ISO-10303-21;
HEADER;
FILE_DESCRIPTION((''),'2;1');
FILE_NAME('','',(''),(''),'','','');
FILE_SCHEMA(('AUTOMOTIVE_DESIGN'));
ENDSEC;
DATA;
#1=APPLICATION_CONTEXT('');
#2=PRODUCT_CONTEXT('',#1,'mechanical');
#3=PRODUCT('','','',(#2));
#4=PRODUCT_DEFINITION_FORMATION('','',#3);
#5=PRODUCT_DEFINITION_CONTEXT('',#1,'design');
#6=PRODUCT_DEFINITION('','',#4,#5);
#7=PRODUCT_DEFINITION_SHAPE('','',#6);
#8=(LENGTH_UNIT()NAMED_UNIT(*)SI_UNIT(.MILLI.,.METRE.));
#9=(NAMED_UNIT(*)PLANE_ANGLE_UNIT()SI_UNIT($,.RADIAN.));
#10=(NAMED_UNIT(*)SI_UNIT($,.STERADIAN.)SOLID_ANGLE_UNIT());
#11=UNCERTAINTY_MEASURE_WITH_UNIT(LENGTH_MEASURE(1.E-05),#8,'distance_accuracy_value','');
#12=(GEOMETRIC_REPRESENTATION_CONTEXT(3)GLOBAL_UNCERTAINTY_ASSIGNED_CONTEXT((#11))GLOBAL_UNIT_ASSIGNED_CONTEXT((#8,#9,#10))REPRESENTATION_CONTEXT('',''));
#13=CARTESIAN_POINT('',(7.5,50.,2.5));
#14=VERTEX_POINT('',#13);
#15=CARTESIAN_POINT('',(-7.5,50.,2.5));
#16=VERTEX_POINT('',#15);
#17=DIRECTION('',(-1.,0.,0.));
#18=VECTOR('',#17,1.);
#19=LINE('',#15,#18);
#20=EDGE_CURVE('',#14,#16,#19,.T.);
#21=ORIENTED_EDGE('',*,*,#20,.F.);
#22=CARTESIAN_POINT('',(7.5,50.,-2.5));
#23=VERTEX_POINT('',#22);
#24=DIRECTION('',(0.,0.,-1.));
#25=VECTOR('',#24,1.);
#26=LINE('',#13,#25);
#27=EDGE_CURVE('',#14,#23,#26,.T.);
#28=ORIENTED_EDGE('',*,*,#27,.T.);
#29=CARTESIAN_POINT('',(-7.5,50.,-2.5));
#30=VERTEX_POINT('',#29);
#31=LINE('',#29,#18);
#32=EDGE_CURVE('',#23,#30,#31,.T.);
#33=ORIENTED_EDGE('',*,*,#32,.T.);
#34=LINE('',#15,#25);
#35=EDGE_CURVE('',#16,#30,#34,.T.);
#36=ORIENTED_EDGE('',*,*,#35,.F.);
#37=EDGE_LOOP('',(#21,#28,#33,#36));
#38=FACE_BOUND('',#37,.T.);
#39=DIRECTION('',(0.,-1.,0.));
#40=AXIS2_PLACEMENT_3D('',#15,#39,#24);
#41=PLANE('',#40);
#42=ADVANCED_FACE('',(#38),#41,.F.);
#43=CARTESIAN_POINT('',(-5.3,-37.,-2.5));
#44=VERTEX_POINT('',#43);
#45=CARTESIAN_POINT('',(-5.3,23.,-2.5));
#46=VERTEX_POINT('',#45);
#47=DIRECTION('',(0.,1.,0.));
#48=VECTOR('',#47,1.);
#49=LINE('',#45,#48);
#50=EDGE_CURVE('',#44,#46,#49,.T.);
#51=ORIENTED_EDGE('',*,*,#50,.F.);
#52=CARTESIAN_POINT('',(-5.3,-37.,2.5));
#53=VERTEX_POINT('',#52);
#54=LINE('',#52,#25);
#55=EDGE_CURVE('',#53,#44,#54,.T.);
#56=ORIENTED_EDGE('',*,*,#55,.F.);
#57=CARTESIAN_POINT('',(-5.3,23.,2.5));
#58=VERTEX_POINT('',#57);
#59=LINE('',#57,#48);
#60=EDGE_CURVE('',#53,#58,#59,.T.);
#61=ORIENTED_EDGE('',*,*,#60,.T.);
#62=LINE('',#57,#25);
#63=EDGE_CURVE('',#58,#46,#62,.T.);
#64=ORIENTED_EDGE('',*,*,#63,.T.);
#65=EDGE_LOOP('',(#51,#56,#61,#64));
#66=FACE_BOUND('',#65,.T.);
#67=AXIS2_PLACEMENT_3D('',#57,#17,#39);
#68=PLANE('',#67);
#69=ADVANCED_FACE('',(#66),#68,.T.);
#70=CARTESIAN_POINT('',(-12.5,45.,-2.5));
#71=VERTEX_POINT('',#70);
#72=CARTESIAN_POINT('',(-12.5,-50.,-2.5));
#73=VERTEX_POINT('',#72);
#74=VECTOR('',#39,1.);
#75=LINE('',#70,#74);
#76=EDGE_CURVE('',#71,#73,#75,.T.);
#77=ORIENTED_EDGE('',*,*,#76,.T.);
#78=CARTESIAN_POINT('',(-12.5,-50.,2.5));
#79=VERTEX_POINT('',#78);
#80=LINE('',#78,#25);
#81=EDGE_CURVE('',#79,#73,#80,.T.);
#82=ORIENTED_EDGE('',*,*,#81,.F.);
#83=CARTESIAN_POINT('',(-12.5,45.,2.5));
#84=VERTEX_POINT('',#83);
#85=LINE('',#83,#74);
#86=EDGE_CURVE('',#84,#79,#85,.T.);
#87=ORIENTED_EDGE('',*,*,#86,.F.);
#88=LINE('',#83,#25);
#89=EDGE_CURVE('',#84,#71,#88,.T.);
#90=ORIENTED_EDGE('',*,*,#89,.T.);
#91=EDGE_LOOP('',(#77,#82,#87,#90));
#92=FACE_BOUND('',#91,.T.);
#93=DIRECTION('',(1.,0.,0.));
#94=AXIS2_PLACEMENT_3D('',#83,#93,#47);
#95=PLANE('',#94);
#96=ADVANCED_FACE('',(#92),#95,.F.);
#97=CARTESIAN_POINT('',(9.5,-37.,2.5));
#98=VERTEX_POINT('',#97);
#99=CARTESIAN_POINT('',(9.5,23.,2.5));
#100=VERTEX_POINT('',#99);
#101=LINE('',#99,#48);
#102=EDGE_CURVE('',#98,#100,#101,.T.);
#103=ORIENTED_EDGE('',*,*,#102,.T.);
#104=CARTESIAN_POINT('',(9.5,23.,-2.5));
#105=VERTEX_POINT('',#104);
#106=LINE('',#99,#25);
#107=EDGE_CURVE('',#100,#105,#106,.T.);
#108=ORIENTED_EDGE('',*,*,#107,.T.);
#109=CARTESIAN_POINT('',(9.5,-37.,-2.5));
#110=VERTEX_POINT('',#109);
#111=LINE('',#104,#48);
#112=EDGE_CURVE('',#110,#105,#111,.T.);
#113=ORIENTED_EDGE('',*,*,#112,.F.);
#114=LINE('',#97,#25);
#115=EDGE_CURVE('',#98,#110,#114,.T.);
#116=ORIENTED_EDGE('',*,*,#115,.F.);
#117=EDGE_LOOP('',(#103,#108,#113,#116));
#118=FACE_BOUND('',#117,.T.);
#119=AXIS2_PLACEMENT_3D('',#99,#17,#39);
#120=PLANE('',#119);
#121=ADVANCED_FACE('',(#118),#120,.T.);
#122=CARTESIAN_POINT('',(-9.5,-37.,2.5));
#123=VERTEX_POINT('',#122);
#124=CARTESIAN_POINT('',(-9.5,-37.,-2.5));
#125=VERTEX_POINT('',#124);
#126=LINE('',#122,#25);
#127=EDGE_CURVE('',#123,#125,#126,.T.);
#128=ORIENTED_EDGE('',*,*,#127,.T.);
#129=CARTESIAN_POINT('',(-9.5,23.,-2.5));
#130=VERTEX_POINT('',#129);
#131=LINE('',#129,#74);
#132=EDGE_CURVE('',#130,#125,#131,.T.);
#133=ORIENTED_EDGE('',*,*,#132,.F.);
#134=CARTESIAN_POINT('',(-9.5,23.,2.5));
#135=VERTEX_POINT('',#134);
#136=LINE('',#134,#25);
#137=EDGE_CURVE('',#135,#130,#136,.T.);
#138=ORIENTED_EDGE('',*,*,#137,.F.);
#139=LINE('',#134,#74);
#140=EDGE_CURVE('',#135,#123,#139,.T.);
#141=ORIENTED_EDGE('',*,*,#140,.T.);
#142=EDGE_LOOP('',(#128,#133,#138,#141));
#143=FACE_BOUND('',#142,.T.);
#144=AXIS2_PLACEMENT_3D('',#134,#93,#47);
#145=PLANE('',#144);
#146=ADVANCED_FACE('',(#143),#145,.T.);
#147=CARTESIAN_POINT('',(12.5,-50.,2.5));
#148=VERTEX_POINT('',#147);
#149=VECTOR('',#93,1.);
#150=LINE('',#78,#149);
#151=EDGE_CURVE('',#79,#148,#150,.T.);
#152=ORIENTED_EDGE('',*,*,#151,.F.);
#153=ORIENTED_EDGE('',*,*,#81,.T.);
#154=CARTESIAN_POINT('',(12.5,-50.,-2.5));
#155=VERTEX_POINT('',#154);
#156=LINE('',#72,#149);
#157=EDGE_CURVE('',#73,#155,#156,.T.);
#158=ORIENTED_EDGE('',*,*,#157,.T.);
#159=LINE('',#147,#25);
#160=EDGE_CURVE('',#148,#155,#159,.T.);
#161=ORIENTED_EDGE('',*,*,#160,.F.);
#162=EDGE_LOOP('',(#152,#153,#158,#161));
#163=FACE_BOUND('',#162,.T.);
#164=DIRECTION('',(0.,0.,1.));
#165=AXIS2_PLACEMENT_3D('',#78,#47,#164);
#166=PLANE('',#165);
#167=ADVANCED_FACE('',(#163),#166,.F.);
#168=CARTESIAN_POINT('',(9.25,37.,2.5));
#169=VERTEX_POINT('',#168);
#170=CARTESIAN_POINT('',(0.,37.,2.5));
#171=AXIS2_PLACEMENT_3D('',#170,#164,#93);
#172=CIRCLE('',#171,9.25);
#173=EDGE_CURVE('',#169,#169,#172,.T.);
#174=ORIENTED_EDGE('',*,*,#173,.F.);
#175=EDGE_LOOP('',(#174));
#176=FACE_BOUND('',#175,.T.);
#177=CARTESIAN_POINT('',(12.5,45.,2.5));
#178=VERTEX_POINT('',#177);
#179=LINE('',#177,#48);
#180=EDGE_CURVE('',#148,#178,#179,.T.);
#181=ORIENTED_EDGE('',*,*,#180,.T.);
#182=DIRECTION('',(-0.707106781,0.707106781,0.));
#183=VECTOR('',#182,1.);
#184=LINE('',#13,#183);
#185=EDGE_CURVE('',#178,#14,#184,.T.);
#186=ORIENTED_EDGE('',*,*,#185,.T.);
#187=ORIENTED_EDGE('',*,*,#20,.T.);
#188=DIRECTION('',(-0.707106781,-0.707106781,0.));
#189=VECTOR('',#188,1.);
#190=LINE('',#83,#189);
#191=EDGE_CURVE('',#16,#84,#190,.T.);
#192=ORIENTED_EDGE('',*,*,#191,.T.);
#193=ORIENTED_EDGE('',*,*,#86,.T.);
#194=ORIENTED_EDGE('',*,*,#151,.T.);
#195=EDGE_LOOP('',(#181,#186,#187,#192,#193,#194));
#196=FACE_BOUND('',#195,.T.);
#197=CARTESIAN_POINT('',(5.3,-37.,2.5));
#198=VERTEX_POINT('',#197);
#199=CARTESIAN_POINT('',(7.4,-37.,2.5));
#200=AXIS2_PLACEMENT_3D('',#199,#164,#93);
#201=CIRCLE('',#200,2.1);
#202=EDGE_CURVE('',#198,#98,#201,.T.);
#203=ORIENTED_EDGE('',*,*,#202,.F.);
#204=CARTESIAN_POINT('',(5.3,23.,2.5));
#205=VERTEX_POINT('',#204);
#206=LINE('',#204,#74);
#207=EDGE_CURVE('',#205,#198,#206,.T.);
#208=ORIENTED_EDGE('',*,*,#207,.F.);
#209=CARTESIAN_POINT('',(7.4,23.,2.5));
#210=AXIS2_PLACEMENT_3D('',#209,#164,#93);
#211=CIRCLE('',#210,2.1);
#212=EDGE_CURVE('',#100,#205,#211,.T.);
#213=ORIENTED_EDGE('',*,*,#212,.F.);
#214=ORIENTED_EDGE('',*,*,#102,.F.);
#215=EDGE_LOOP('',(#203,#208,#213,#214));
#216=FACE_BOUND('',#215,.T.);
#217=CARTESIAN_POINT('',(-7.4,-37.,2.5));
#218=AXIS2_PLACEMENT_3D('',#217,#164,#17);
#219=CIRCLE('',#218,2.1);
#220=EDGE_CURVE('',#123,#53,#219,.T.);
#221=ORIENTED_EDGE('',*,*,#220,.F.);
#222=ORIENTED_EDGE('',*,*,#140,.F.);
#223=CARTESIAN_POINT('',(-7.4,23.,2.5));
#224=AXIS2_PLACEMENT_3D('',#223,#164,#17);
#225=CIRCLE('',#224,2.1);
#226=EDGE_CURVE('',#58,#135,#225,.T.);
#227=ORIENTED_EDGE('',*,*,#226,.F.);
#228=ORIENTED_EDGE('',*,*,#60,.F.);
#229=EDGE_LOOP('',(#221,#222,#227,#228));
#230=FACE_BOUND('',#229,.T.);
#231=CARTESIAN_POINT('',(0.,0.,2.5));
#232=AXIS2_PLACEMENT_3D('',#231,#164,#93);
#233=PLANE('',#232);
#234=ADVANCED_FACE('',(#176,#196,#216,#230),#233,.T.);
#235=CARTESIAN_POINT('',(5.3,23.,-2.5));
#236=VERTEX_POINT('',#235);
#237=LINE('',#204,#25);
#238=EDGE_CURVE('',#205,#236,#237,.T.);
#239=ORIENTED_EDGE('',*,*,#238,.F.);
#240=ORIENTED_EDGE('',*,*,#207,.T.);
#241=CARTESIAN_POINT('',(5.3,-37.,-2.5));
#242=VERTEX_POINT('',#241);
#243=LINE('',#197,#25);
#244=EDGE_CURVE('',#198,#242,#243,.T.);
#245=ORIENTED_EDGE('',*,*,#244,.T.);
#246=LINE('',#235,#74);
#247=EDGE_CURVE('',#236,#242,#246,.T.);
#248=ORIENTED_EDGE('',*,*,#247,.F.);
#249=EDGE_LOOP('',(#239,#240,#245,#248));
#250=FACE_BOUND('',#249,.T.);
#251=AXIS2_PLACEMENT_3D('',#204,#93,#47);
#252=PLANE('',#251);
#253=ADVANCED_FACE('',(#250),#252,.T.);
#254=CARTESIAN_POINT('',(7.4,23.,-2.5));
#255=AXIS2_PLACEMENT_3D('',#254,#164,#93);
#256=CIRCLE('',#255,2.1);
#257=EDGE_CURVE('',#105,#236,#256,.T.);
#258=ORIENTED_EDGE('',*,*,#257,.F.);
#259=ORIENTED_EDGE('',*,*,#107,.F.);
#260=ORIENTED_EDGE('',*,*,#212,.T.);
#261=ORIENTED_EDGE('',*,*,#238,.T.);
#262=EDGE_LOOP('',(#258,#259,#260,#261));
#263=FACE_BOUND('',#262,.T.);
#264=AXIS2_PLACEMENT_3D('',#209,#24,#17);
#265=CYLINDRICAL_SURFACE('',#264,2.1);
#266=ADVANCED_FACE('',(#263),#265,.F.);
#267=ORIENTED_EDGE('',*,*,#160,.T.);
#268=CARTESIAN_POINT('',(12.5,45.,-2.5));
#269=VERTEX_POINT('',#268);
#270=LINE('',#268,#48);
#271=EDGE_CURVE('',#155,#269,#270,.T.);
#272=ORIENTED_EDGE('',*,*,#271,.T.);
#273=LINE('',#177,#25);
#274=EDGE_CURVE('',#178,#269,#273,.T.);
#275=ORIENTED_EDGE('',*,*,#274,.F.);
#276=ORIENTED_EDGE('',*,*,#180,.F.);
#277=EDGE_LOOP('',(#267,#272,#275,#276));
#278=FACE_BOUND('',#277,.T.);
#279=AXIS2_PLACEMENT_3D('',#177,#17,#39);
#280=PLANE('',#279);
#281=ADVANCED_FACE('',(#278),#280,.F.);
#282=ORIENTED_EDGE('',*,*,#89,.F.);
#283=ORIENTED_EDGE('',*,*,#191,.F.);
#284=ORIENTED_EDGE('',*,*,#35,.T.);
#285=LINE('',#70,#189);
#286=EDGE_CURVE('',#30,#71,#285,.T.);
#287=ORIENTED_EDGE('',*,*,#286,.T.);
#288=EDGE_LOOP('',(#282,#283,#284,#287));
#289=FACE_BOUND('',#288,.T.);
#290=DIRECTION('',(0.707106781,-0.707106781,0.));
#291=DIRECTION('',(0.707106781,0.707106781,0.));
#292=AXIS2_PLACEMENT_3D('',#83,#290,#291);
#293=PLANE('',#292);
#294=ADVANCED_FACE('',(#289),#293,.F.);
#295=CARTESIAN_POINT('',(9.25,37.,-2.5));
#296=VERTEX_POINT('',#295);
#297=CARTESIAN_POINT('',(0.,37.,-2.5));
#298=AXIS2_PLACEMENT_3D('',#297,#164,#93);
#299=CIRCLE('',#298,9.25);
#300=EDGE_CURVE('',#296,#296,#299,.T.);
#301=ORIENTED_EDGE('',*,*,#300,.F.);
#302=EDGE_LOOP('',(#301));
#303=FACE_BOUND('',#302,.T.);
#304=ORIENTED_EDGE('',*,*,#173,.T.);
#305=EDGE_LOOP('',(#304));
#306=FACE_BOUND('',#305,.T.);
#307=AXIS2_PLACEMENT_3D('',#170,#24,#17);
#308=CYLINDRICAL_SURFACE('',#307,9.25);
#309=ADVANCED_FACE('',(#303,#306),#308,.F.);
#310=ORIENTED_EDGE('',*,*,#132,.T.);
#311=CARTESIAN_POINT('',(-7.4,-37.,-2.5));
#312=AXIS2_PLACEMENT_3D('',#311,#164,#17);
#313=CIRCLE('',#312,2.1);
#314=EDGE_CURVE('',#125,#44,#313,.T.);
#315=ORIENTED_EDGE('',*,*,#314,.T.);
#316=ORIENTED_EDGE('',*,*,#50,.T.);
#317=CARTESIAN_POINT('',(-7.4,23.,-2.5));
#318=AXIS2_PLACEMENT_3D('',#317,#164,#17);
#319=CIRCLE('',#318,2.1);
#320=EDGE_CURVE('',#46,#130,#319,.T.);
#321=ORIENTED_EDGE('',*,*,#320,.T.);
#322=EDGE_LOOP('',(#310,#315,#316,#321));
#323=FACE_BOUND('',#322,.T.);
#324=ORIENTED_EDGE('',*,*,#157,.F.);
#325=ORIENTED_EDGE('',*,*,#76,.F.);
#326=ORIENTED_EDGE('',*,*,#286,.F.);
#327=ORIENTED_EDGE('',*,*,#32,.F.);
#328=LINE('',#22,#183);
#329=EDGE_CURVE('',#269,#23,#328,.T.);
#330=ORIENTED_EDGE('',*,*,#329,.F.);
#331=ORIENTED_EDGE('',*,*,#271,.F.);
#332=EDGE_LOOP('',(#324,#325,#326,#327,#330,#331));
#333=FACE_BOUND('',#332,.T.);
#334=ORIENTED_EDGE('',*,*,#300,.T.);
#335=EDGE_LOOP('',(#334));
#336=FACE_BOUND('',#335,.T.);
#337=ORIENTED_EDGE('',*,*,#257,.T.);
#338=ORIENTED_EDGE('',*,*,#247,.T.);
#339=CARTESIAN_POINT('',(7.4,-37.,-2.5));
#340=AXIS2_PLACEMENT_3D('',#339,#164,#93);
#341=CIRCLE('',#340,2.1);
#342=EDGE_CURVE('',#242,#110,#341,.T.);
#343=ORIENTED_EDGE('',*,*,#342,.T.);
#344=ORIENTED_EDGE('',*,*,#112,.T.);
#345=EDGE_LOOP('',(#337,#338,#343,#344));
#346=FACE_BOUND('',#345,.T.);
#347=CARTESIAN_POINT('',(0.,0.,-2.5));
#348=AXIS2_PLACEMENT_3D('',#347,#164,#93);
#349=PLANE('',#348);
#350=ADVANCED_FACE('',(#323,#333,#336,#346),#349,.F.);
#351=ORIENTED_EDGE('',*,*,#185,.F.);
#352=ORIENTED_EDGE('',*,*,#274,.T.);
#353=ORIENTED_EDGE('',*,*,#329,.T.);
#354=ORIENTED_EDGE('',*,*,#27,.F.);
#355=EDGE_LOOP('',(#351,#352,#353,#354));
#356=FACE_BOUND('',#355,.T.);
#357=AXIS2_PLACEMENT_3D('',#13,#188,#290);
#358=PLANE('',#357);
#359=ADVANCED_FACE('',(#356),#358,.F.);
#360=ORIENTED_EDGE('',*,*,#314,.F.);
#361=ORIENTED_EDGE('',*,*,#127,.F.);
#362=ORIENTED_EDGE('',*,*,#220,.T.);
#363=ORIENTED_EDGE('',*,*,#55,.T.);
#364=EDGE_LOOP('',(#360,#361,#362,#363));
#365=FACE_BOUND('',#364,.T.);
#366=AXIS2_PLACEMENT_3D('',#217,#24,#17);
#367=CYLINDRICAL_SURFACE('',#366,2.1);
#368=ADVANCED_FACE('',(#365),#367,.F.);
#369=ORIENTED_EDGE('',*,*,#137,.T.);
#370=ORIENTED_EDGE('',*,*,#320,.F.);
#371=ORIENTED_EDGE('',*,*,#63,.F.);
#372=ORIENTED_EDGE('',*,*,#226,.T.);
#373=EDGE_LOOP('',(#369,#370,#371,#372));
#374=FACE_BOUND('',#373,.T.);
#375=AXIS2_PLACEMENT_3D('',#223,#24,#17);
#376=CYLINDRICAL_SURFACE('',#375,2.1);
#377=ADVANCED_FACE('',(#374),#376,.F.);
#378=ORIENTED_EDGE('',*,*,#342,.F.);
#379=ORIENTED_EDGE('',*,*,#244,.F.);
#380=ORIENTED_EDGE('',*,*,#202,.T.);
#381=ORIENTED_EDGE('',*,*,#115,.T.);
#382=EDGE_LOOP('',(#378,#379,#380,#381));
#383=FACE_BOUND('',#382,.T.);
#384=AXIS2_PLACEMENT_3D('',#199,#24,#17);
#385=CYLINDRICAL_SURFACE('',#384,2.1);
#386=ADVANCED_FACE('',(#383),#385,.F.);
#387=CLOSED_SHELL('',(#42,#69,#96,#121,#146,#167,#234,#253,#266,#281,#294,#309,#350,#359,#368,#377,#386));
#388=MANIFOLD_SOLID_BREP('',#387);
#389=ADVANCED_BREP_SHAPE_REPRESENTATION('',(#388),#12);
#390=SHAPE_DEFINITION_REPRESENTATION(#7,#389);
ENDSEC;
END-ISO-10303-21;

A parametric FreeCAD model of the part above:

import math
import FreeCAD as App
import Part
import Sketcher
from FreeCAD import Vector
Q = App.Units.Quantity

doc = App.newDocument("Part")
params = doc.addObject("Spreadsheet::Sheet", "Params")
for row, (alias, value) in enumerate([
    ("sketch1_diameter", "18.5 mm"),
    ("sketch1_radius", "2.1 mm"),
    ("sketch1_width", "15 mm"),
    ("sketch1_width2", "25 mm"),
    ("sketch1_height", "95 mm"),
    ("pad1_length", "5 mm"),
], start=1):
    params.set(f"A{row}", alias)
    params.set(f"B{row}", "=" + value)
    params.setAlias(f"B{row}", alias)

body = doc.addObject("PartDesign::Body", "Body")

# Sketch on XY plane
sketch1 = body.newObject("Sketcher::SketchObject", "Sketch")
sketch1.AttachmentSupport = (doc.getObject("XY_Plane"), [""])
sketch1.MapMode = "FlatFace"
sketch1.addGeometry(Part.LineSegment(Vector(7.5, 50, 0), Vector(-7.5, 50, 0)), False)
sketch1.addGeometry(Part.LineSegment(Vector(-7.5, 50, 0), Vector(-12.5, 45, 0)), False)
sketch1.addGeometry(Part.LineSegment(Vector(-12.5, 45, 0), Vector(-12.5, -50, 0)), False)
sketch1.addGeometry(Part.LineSegment(Vector(-12.5, -50, 0), Vector(12.5, -50, 0)), False)
sketch1.addGeometry(Part.LineSegment(Vector(12.5, -50, 0), Vector(12.5, 45, 0)), False)
sketch1.addGeometry(Part.LineSegment(Vector(12.5, 45, 0), Vector(7.5, 50, 0)), False)
sketch1.addGeometry(Part.LineSegment(Vector(9.5, 23, 0), Vector(9.5, -37, 0)), False)
sketch1.addGeometry(Part.ArcOfCircle(Part.Circle(Vector(7.4, -37, 0), Vector(0, 0, 1), 2.1), math.radians(180), math.radians(360)), False)
sketch1.addGeometry(Part.LineSegment(Vector(5.3, -37, 0), Vector(5.3, 23, 0)), False)
sketch1.addGeometry(Part.ArcOfCircle(Part.Circle(Vector(7.4, 23, 0), Vector(0, 0, 1), 2.1), math.radians(0), math.radians(180)), False)
sketch1.addGeometry(Part.ArcOfCircle(Part.Circle(Vector(-7.4, 23, 0), Vector(0, 0, 1), 2.1), math.radians(0), math.radians(180)), False)
sketch1.addGeometry(Part.LineSegment(Vector(-5.3, 23, 0), Vector(-5.3, -37, 0)), False)
sketch1.addGeometry(Part.ArcOfCircle(Part.Circle(Vector(-7.4, -37, 0), Vector(0, 0, 1), 2.1), math.radians(180), math.radians(360)), False)
sketch1.addGeometry(Part.LineSegment(Vector(-9.5, -37, 0), Vector(-9.5, 23, 0)), False)
sketch1.addGeometry(Part.Circle(Vector(0, 37, 0), Vector(0, 0, 1), 9.2), False)
sketch1.addConstraint(Sketcher.Constraint("Coincident", 0, 2, 1, 1))
sketch1.addConstraint(Sketcher.Constraint("Coincident", 1, 2, 2, 1))
sketch1.addConstraint(Sketcher.Constraint("Coincident", 2, 2, 3, 1))
sketch1.addConstraint(Sketcher.Constraint("Coincident", 3, 2, 4, 1))
sketch1.addConstraint(Sketcher.Constraint("Coincident", 4, 2, 5, 1))
sketch1.addConstraint(Sketcher.Constraint("Coincident", 5, 2, 0, 1))
sketch1.addConstraint(Sketcher.Constraint("Tangent", 6, 2, 7, 2))
sketch1.addConstraint(Sketcher.Constraint("Tangent", 7, 1, 8, 1))
sketch1.addConstraint(Sketcher.Constraint("Tangent", 8, 2, 9, 2))
sketch1.addConstraint(Sketcher.Constraint("Tangent", 9, 1, 6, 1))
sketch1.addConstraint(Sketcher.Constraint("Tangent", 10, 1, 11, 1))
sketch1.addConstraint(Sketcher.Constraint("Tangent", 11, 2, 12, 2))
sketch1.addConstraint(Sketcher.Constraint("Tangent", 12, 1, 13, 1))
sketch1.addConstraint(Sketcher.Constraint("Tangent", 13, 2, 10, 2))
sketch1.addConstraint(Sketcher.Constraint("Horizontal", 0))
sketch1.addConstraint(Sketcher.Constraint("Vertical", 2))
sketch1.addConstraint(Sketcher.Constraint("Horizontal", 3))
sketch1.addConstraint(Sketcher.Constraint("Vertical", 4))
sketch1.addConstraint(Sketcher.Constraint("Vertical", 6))
sketch1.addConstraint(Sketcher.Constraint("Vertical", 8))
sketch1.addConstraint(Sketcher.Constraint("Vertical", 11))
sketch1.addConstraint(Sketcher.Constraint("Vertical", 13))
sketch1.addConstraint(Sketcher.Constraint("Equal", 9, 10))
sketch1.addConstraint(Sketcher.Constraint("Symmetric", 9, 3, 10, 3, -2))
sketch1.addConstraint(Sketcher.Constraint("Symmetric", 1, 2, 4, 2, -2))
sketch1.addConstraint(Sketcher.Constraint("PointOnObject", 14, 3, -2))
sketch1.addConstraint(Sketcher.Constraint("Perpendicular", 1, 5))
sketch1.addConstraint(Sketcher.Constraint("Horizontal", 7, 3, 12, 3))
sketch1.addConstraint(Sketcher.Constraint("Equal", 1, 5))
sketch1.addConstraint(Sketcher.Constraint("Diameter", 14, Q("18.5 mm")))
sketch1.addConstraint(Sketcher.Constraint("Radius", 7, Q("2.1 mm")))
sketch1.addConstraint(Sketcher.Constraint("DistanceX", 0, 2, 0, 1, Q("15 mm")))
sketch1.addConstraint(Sketcher.Constraint("DistanceX", 3, 1, 3, 2, Q("25 mm")))
sketch1.addConstraint(Sketcher.Constraint("DistanceY", 2, 2, 2, 1, Q("95 mm")))
sketch1.addConstraint(Sketcher.Constraint("DistanceY", 6, 2, 6, 1, Q("60 mm")))
sketch1.addConstraint(Sketcher.Constraint("DistanceY", 7, 3, -1, 1, Q("37 mm")))
sketch1.addConstraint(Sketcher.Constraint("DistanceY", -1, 1, 14, 3, Q("37 mm")))
sketch1.addConstraint(Sketcher.Constraint("DistanceY", -1, 1, 0, 2, Q("50 mm")))
sketch1.addConstraint(Sketcher.Constraint("DistanceX", 6, 2, 3, 2, Q("3 mm")))
sketch1.setExpression("Constraints[29]", "Params.sketch1_diameter")
sketch1.setExpression("Constraints[30]", "Params.sketch1_radius")
sketch1.setExpression("Constraints[31]", "Params.sketch1_width")
sketch1.setExpression("Constraints[32]", "Params.sketch1_width2")
sketch1.setExpression("Constraints[33]", "Params.sketch1_height")
pad1 = body.newObject("PartDesign::Pad", "Pad")
pad1.Profile = sketch1
pad1.setExpression("Length", "Params.pad1_length")
pad1.Midplane = True

doc.recompute()
